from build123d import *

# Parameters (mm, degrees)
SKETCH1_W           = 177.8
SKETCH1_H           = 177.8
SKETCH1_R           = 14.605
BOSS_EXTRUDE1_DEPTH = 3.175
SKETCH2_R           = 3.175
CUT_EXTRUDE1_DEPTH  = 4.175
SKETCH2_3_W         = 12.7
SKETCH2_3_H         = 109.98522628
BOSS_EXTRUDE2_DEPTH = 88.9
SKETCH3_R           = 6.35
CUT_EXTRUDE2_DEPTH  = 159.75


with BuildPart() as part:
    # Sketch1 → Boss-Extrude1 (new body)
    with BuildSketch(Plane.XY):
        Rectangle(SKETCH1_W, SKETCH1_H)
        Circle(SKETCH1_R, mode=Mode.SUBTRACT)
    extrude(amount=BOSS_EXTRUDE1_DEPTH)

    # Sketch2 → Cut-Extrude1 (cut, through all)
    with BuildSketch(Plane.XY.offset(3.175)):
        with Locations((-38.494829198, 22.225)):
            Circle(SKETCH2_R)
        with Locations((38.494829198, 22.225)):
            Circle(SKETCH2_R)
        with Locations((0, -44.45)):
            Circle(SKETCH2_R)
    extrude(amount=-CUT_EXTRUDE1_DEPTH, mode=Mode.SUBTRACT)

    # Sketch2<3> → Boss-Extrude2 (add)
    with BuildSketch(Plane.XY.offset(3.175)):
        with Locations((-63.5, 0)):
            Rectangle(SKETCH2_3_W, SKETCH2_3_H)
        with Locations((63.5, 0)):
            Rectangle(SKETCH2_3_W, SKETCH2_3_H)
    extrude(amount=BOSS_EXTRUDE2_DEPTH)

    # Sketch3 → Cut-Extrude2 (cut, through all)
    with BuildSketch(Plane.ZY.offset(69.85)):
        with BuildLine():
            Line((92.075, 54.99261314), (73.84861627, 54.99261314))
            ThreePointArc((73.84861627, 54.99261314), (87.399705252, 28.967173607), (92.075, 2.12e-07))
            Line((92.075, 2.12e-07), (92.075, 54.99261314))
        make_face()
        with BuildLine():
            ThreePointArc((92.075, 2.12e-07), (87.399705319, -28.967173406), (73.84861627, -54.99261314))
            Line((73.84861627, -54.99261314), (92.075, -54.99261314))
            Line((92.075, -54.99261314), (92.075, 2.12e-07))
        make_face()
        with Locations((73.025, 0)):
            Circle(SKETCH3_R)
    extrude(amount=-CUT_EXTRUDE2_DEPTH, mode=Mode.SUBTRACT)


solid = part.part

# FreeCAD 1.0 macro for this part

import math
import FreeCAD as App
import Part
import Sketcher
Q = App.Units.Quantity

doc = App.newDocument("Part")
body = doc.addObject("PartDesign::Body", "Body")

# Sketch on XY plane
sketch1 = doc.addObject("Sketcher::SketchObject", "Sketch")
body.addObject(sketch1)
sketch1.AttachmentSupport = (doc.XY_Plane, [""])
sketch1.MapMode = "FlatFace"
sketch1.addGeometry([
    Part.LineSegment(App.Vector(-88.9, 88.9, 0), App.Vector(-88.9, -88.9, 0)),  # 0
    Part.LineSegment(App.Vector(-88.9, -88.9, 0), App.Vector(88.9, -88.9, 0)),  # 1
    Part.LineSegment(App.Vector(88.9, -88.9, 0), App.Vector(88.9, 88.9, 0)),  # 2
    Part.LineSegment(App.Vector(88.9, 88.9, 0), App.Vector(-88.9, 88.9, 0)),  # 3
    Part.Circle(App.Vector(0, 0, 0), App.Vector(0, 0, 1), 14.605),  # 4
], False)
sketch1.addConstraint([
    Sketcher.Constraint("Coincident", 0, 2, 1, 1),
    Sketcher.Constraint("Coincident", 1, 2, 2, 1),
    Sketcher.Constraint("Coincident", 2, 2, 3, 1),
    Sketcher.Constraint("Coincident", 3, 2, 0, 1),
    Sketcher.Constraint("Vertical", 0),
    Sketcher.Constraint("Horizontal", 1),
    Sketcher.Constraint("Vertical", 2),
    Sketcher.Constraint("Horizontal", 3),
    Sketcher.Constraint("Coincident", 4, 3, -1, 1),
    Sketcher.Constraint("Symmetric", 0, 2, 2, 2, -1, 1),
    Sketcher.Constraint("Equal", 3, 0),
    Sketcher.Constraint("Diameter", 4, Q("1.15 in")),
    Sketcher.Constraint("DistanceX", 1, 1, 1, 2, Q("7 in")),
])
pad1 = doc.addObject("PartDesign::Pad", "Pad")
body.addObject(pad1)
pad1.Profile = sketch1
pad1.Length = Q("0.125 in")

# Sketch on XY plane
sketch2 = doc.addObject("Sketcher::SketchObject", "Sketch001")
body.addObject(sketch2)
sketch2.AttachmentSupport = (doc.XY_Plane, [""])
sketch2.MapMode = "FlatFace"
sketch2.AttachmentOffset = App.Placement(App.Vector(0, 0, 0.125 * 25.4), App.Rotation())
sketch2.addGeometry([
    Part.Circle(App.Vector(-38.494829, 22.225, 0), App.Vector(0, 0, 1), 3.175),
    Part.Circle(App.Vector(38.494829, 22.225, 0), App.Vector(0, 0, 1), 3.175),
    Part.Circle(App.Vector(0, -44.45, 0), App.Vector(0, 0, 1), 3.175),
], False)
sketch2.addConstraint([
    Sketcher.Constraint("Equal", 0, 1),
    Sketcher.Constraint("Equal", 1, 2),
    Sketcher.Constraint("Symmetric", 0, 3, 1, 3, -2),
    Sketcher.Constraint("PointOnObject", 2, 3, -2),
    Sketcher.Constraint("Diameter", 0, Q("0.25 in")),
    Sketcher.Constraint("DistanceY", 2, 3, -1, 1, Q("1.75 in")),
    Sketcher.Constraint("DistanceY", -1, 1, 0, 3, Q("0.875 in")),
    Sketcher.Constraint("DistanceX", 0, 3, -1, 1, Q("38.494829 mm")),
])
pocket1 = doc.addObject("PartDesign::Pocket", "Pocket")
body.addObject(pocket1)
pocket1.Profile = sketch2
pocket1.Type = "ThroughAll"

# Sketch on XY plane
sketch3 = doc.addObject("Sketcher::SketchObject", "Sketch002")
body.addObject(sketch3)
sketch3.AttachmentSupport = (doc.XY_Plane, [""])
sketch3.MapMode = "FlatFace"
sketch3.AttachmentOffset = App.Placement(App.Vector(0, 0, 0.125 * 25.4), App.Rotation())
sketch3.addGeometry([
    Part.LineSegment(App.Vector(-69.85, 54.992613, 0), App.Vector(-69.85, -54.992613, 0)),  # 0
    Part.LineSegment(App.Vector(-69.85, -54.992613, 0), App.Vector(-57.15, -54.992613, 0)),  # 1
    Part.LineSegment(App.Vector(-57.15, -54.992613, 0), App.Vector(-57.15, 54.992613, 0)),  # 2
    Part.LineSegment(App.Vector(-57.15, 54.992613, 0), App.Vector(-69.85, 54.992613, 0)),  # 3
    Part.LineSegment(App.Vector(57.15, 54.992613, 0), App.Vector(57.15, -54.992613, 0)),  # 4
    Part.LineSegment(App.Vector(57.15, -54.992613, 0), App.Vector(69.85, -54.992613, 0)),  # 5
    Part.LineSegment(App.Vector(69.85, -54.992613, 0), App.Vector(69.85, 54.992613, 0)),  # 6
    Part.LineSegment(App.Vector(69.85, 54.992613, 0), App.Vector(57.15, 54.992613, 0)),  # 7
], False)
sketch3.addConstraint([
    Sketcher.Constraint("Coincident", 0, 2, 1, 1),
    Sketcher.Constraint("Coincident", 1, 2, 2, 1),
    Sketcher.Constraint("Coincident", 2, 2, 3, 1),
    Sketcher.Constraint("Coincident", 3, 2, 0, 1),
    Sketcher.Constraint("Coincident", 4, 2, 5, 1),
    Sketcher.Constraint("Coincident", 5, 2, 6, 1),
    Sketcher.Constraint("Coincident", 6, 2, 7, 1),
    Sketcher.Constraint("Coincident", 7, 2, 4, 1),
    Sketcher.Constraint("Vertical", 0),
    Sketcher.Constraint("Horizontal", 1),
    Sketcher.Constraint("Vertical", 2),
    Sketcher.Constraint("Horizontal", 3),
    Sketcher.Constraint("Vertical", 4),
    Sketcher.Constraint("Horizontal", 5),
    Sketcher.Constraint("Vertical", 6),
    Sketcher.Constraint("Horizontal", 7),
    Sketcher.Constraint("Symmetric", 2, 2, 4, 2, -1, 1),
    Sketcher.Constraint("Symmetric", 0, 2, 6, 2, -1, 1),
    Sketcher.Constraint("Horizontal", 1, 2, 4, 2),
    Sketcher.Constraint("DistanceX", 1, 1, 1, 2, Q("0.5 in")),
    Sketcher.Constraint("DistanceX", 0, 2, 4, 2, Q("5 in")),
    Sketcher.Constraint("DistanceY", 0, 2, 0, 1, Q("109.985226 mm")),
])
pad2 = doc.addObject("PartDesign::Pad", "Pad001")
body.addObject(pad2)
pad2.Profile = sketch3
pad2.Length = Q("3.5 in")

# Sketch on YZ plane
sketch4 = doc.addObject("Sketcher::SketchObject", "Sketch003")
body.addObject(sketch4)
sketch4.AttachmentSupport = (doc.YZ_Plane, [""])
sketch4.MapMode = "FlatFace"
sketch4.AttachmentOffset = App.Placement(App.Vector(0, 0, -2.75 * 25.4), App.Rotation())
sketch4.addGeometry([
    Part.LineSegment(App.Vector(54.992613, 92.075, 0), App.Vector(54.992613, 73.848616, 0)),  # 0
    Part.ArcOfCircle(Part.Circle(App.Vector(0, 0, 0), App.Vector(0, 0, 1), 92.075), math.radians(53.326168), math.radians(90)),  # 1
    Part.LineSegment(App.Vector(0, 92.075, 0), App.Vector(54.992613, 92.075, 0)),  # 2
    Part.ArcOfCircle(Part.Circle(App.Vector(0, 0, 0), App.Vector(0, 0, 1), 92.075), math.radians(90), math.radians(126.673832)),  # 3
    Part.LineSegment(App.Vector(-54.992613, 73.848616, 0), App.Vector(-54.992613, 92.075, 0)),  # 4
    Part.LineSegment(App.Vector(-54.992613, 92.075, 0), App.Vector(0, 92.075, 0)),  # 5
    Part.Circle(App.Vector(0, 73.025, 0), App.Vector(0, 0, 1), 6.35),  # 6
], False)
sketch4.addConstraint([
    Sketcher.Constraint("Coincident", 0, 2, 1, 1),
    Sketcher.Constraint("Tangent", 1, 2, 2, 1),
    Sketcher.Constraint("Coincident", 2, 2, 0, 1),
    Sketcher.Constraint("Coincident", 3, 2, 4, 1),
    Sketcher.Constraint("Coincident", 4, 2, 5, 1),
    Sketcher.Constraint("Tangent", 5, 2, 3, 1),
    Sketcher.Constraint("Vertical", 0),
    Sketcher.Constraint("Horizontal", 2),
    Sketcher.Constraint("Vertical", 4),
    Sketcher.Constraint("Horizontal", 5),
    Sketcher.Constraint("Coincident", 1, 3, -1, 1),
    Sketcher.Constraint("Coincident", 3, 3, -1, 1),
    Sketcher.Constraint("Equal", 1, 3),
    Sketcher.Constraint("PointOnObject", 6, 3, -2),
    Sketcher.Constraint("Horizontal", 0, 2, 3, 2),
    Sketcher.Constraint("Diameter", 6, Q("0.5 in")),
    Sketcher.Constraint("Radius", 1, Q("3.625 in")),
    Sketcher.Constraint("DistanceY", 6, 3, 1, 2, Q("0.75 in")),
    Sketcher.Constraint("DistanceX", 2, 1, 2, 2, Q("54.992613 mm")),
])
pocket2 = doc.addObject("PartDesign::Pocket", "Pocket001")
body.addObject(pocket2)
pocket2.Profile = sketch4
pocket2.Type = "ThroughAll"
pocket2.Reversed = True

doc.recompute()
